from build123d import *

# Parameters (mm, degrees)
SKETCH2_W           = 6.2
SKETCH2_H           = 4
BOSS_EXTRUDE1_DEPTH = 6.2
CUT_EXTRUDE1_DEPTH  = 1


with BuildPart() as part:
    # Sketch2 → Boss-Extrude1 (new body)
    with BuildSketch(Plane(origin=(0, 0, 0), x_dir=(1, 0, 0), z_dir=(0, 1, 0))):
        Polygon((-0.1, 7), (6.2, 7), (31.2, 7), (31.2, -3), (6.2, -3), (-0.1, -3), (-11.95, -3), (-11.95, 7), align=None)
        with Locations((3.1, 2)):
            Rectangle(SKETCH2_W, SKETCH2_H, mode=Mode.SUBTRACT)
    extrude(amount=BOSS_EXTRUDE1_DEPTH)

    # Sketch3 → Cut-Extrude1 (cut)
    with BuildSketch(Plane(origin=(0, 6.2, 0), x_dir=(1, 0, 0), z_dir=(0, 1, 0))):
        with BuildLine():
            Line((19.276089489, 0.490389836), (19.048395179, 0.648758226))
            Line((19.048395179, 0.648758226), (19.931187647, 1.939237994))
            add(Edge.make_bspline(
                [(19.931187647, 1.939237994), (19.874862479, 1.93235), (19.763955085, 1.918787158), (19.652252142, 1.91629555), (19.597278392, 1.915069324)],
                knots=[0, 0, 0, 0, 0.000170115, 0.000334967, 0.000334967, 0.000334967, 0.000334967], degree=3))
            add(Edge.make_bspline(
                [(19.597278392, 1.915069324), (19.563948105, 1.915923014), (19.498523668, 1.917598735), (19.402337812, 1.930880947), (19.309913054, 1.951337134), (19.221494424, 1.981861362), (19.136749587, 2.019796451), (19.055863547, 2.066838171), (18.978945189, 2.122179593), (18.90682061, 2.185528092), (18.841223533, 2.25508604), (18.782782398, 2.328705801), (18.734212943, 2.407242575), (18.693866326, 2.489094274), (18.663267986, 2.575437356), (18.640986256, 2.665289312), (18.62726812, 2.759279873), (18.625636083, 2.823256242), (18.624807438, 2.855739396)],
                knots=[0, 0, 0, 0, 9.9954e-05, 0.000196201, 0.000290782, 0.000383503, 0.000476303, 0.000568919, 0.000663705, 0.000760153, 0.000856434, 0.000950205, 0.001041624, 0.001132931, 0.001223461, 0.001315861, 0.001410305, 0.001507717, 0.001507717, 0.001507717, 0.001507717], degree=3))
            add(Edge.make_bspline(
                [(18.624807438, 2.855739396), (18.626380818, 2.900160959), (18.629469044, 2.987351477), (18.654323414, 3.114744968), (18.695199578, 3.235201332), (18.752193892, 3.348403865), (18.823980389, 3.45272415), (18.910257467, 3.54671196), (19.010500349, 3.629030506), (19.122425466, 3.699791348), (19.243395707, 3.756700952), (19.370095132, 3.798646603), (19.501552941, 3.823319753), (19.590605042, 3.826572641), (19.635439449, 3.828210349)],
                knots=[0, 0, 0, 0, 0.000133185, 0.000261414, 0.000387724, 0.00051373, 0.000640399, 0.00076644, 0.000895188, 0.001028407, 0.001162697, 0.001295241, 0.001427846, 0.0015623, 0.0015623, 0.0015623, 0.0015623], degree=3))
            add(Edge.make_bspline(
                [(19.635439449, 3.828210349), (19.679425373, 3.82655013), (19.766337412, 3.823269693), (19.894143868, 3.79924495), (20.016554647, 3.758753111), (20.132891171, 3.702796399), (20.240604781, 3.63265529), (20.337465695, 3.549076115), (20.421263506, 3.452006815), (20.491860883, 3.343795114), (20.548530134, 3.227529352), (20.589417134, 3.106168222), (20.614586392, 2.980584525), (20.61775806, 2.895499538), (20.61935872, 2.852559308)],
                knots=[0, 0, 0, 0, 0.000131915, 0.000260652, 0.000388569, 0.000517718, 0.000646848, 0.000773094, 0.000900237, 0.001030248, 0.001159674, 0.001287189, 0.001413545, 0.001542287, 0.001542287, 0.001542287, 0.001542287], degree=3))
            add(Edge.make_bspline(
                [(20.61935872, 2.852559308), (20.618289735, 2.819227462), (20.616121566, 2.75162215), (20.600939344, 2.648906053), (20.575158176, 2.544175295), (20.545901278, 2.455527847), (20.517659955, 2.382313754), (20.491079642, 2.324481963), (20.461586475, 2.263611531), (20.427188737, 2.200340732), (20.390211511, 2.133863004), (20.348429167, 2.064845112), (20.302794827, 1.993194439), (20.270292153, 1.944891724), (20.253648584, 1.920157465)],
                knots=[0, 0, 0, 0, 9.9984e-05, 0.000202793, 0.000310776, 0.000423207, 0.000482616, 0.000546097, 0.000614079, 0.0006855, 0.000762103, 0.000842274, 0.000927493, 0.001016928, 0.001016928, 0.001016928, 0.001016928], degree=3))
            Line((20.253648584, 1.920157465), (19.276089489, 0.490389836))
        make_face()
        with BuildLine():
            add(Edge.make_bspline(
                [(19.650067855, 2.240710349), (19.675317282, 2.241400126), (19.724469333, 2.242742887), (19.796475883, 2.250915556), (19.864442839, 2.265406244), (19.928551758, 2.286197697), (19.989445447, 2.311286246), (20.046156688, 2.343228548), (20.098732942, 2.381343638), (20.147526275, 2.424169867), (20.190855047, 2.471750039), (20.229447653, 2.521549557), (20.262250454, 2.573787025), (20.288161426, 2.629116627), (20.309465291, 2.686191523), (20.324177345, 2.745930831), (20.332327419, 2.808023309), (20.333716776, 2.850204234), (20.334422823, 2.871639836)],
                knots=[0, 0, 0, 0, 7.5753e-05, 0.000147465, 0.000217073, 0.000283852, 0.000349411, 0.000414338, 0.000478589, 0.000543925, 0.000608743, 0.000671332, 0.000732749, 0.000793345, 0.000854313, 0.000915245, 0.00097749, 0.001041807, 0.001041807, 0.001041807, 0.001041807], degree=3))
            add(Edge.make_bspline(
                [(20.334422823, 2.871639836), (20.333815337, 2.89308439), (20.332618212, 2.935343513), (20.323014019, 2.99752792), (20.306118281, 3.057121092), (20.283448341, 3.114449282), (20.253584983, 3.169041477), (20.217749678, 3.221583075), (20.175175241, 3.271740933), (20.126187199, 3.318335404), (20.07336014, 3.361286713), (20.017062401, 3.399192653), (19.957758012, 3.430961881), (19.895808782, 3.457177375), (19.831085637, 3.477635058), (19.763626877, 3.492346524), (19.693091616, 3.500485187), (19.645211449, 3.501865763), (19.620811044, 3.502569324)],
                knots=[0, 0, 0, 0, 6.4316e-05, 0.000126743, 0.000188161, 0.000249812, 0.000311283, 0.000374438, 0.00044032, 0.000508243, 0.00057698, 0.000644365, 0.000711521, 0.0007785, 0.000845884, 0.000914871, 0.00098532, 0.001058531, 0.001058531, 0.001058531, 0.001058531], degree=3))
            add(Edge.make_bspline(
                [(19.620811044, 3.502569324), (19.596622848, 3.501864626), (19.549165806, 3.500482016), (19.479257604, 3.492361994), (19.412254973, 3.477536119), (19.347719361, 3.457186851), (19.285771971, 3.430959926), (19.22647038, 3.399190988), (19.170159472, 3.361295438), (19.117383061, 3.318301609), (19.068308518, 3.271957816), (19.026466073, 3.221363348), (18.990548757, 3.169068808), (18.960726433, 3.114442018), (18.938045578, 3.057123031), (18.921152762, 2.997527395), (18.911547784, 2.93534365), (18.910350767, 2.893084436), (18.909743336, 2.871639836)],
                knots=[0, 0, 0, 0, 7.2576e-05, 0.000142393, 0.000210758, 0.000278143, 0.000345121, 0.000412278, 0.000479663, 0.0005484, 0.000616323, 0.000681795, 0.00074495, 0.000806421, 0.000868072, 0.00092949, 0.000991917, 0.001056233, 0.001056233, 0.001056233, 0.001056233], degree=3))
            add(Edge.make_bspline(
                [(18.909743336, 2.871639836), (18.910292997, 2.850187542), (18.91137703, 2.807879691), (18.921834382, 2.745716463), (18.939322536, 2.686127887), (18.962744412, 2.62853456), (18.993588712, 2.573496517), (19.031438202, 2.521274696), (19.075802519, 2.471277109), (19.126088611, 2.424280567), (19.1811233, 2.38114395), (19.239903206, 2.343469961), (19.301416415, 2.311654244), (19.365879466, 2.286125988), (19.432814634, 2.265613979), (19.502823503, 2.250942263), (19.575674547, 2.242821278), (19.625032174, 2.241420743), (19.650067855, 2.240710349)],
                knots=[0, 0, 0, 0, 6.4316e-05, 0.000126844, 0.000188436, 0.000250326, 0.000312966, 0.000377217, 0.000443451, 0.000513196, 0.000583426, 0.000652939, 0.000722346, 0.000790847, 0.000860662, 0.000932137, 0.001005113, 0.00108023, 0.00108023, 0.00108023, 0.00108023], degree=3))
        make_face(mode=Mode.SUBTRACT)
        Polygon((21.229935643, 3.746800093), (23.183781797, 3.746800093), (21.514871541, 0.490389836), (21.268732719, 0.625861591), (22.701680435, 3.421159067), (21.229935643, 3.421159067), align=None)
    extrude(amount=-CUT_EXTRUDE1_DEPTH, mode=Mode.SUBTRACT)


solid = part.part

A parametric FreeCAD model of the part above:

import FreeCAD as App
import Part
import Sketcher
from FreeCAD import Vector

doc = App.newDocument("Part")
body = doc.addObject("PartDesign::Body", "Body")

# Sketch on XZ plane
sketch1 = doc.addObject("Sketcher::SketchObject", "Sketch")
body.addObject(sketch1)
sketch1.AttachmentSupport = (doc.XZ_Plane, [""])
sketch1.MapMode = "FlatFace"
sketch1.addGeometry([
    Part.LineSegment(Vector(31.2, -7, 0), Vector(-11.9, -7, 0)),  # 0
    Part.LineSegment(Vector(-11.9, -7, 0), Vector(-11.9, 3, 0)),  # 1
    Part.LineSegment(Vector(-11.9, 3, 0), Vector(31.2, 3, 0)),  # 2
    Part.LineSegment(Vector(31.2, 3, 0), Vector(31.2, -7, 0)),  # 3
    Part.LineSegment(Vector(0, 0, 0), Vector(0, -4, 0)),  # 4
    Part.LineSegment(Vector(0, -4, 0), Vector(6.2, -4, 0)),  # 5
    Part.LineSegment(Vector(6.2, -4, 0), Vector(6.2, 0, 0)),  # 6
    Part.LineSegment(Vector(6.2, 0, 0), Vector(0, 0, 0)),  # 7
], False)
sketch1.addConstraint([
    Sketcher.Constraint("Coincident", 0, 2, 1, 1),
    Sketcher.Constraint("Coincident", 1, 2, 2, 1),
    Sketcher.Constraint("Coincident", 2, 2, 3, 1),
    Sketcher.Constraint("Coincident", 3, 2, 0, 1),
    Sketcher.Constraint("Coincident", 4, 2, 5, 1),
    Sketcher.Constraint("Coincident", 5, 2, 6, 1),
    Sketcher.Constraint("Coincident", 6, 2, 7, 1),
    Sketcher.Constraint("Coincident", 7, 2, 4, 1),
    Sketcher.Constraint("Horizontal", 0),
    Sketcher.Constraint("Vertical", 1),
    Sketcher.Constraint("Horizontal", 2),
    Sketcher.Constraint("Vertical", 3),
    Sketcher.Constraint("Vertical", 4),
    Sketcher.Constraint("Horizontal", 5),
    Sketcher.Constraint("Vertical", 6),
    Sketcher.Constraint("Horizontal", 7),
    Sketcher.Constraint("Coincident", 7, 2, -1, 1),
    Sketcher.Constraint("DistanceY", 1, 1, 1, 2, 10.0),
    Sketcher.Constraint("DistanceY", 4, 2, 4, 1, 4.0),
    Sketcher.Constraint("DistanceX", 5, 1, 5, 2, 6.2),
    Sketcher.Constraint("DistanceY", 0, 2, -1, 1, 7.0),
    Sketcher.Constraint("DistanceX", 5, 2, 3, 2, 25.0),
    Sketcher.Constraint("DistanceX", 0, 2, 0, 1, 43.15),
])
pad1 = doc.addObject("PartDesign::Pad", "Pad")
body.addObject(pad1)
pad1.Profile = sketch1
pad1.Length = 6.2
pad1.Reversed = True

# Sketch on XZ plane
sketch2 = doc.addObject("Sketcher::SketchObject", "Sketch001")
body.addObject(sketch2)
sketch2.AttachmentSupport = (doc.XZ_Plane, [""])
sketch2.MapMode = "FlatFace"
sketch2.AttachmentOffset = App.Placement(Vector(0, 0, -6.2), App.Rotation())
sketch2.addGeometry([
    Part.LineSegment(Vector(19.048395, -0.648758, 0), Vector(19.276089, -0.49039, 0)),  # 0
    Part.LineSegment(Vector(19.276089, -0.49039, 0), Vector(20.253649, -1.920157, 0)),  # 1
    Part.BSplineCurve([Vector(20.619359, -2.852559, 0), Vector(20.61829, -2.819227, 0), Vector(20.616122, -2.751622, 0), Vector(20.600939, -2.648906, 0), Vector(20.575158, -2.544175, 0), Vector(20.545901, -2.455528, 0), Vector(20.51766, -2.382314, 0), Vector(20.49108, -2.324482, 0), Vector(20.461586, -2.263612, 0), Vector(20.427189, -2.200341, 0), Vector(20.390212, -2.133863, 0), Vector(20.348429, -2.064845, 0), Vector(20.302795, -1.993194, 0), Vector(20.270292, -1.944892, 0), Vector(20.253649, -1.920157, 0)], [4, 1, 1, 1, 1, 1, 1, 1, 1, 1, 1, 1, 4], [0, 0.000099984, 0.000202793, 0.000310776, 0.000423207, 0.000482616, 0.000546097, 0.000614079, 0.0006855, 0.000762103, 0.000842274, 0.000927493, 0.001016928], False, 3, [1, 1, 1, 1, 1, 1, 1, 1, 1, 1, 1, 1, 1, 1, 1], False),  # 2
    Part.BSplineCurve([Vector(19.635439, -3.82821, 0), Vector(19.679425, -3.82655, 0), Vector(19.766337, -3.82327, 0), Vector(19.894144, -3.799245, 0), Vector(20.016555, -3.758753, 0), Vector(20.132891, -3.702796, 0), Vector(20.240605, -3.632655, 0), Vector(20.337466, -3.549076, 0), Vector(20.421264, -3.452007, 0), Vector(20.491861, -3.343795, 0), Vector(20.54853, -3.227529, 0), Vector(20.589417, -3.106168, 0), Vector(20.614586, -2.980585, 0), Vector(20.617758, -2.8955, 0), Vector(20.619359, -2.852559, 0)], [4, 1, 1, 1, 1, 1, 1, 1, 1, 1, 1, 1, 4], [0, 0.000131915, 0.000260652, 0.000388569, 0.000517718, 0.000646848, 0.000773094, 0.000900237, 0.001030248, 0.001159674, 0.001287189, 0.001413545, 0.001542287], False, 3, [1, 1, 1, 1, 1, 1, 1, 1, 1, 1, 1, 1, 1, 1, 1], False),  # 3
    Part.BSplineCurve([Vector(18.624807, -2.855739, 0), Vector(18.626381, -2.900161, 0), Vector(18.629469, -2.987351, 0), Vector(18.654323, -3.114745, 0), Vector(18.6952, -3.235201, 0), Vector(18.752194, -3.348404, 0), Vector(18.82398, -3.452724, 0), Vector(18.910257, -3.546712, 0), Vector(19.0105, -3.629031, 0), Vector(19.122425, -3.699791, 0), Vector(19.243396, -3.756701, 0), Vector(19.370095, -3.798647, 0), Vector(19.501553, -3.82332, 0), Vector(19.590605, -3.826573, 0), Vector(19.635439, -3.82821, 0)], [4, 1, 1, 1, 1, 1, 1, 1, 1, 1, 1, 1, 4], [0, 0.000133185, 0.000261414, 0.000387724, 0.00051373, 0.000640399, 0.00076644, 0.000895188, 0.001028407, 0.001162697, 0.001295241, 0.001427846, 0.0015623], False, 3, [1, 1, 1, 1, 1, 1, 1, 1, 1, 1, 1, 1, 1, 1, 1], False),  # 4
    Part.BSplineCurve([Vector(19.597278, -1.915069, 0), Vector(19.563948, -1.915923, 0), Vector(19.498524, -1.917599, 0), Vector(19.402338, -1.930881, 0), Vector(19.309913, -1.951337, 0), Vector(19.221494, -1.981861, 0), Vector(19.13675, -2.019796, 0), Vector(19.055864, -2.066838, 0), Vector(18.978945, -2.12218, 0), Vector(18.906821, -2.185528, 0), Vector(18.841224, -2.255086, 0), Vector(18.782782, -2.328706, 0), Vector(18.734213, -2.407243, 0), Vector(18.693866, -2.489094, 0), Vector(18.663268, -2.575437, 0), Vector(18.640986, -2.665289, 0), Vector(18.627268, -2.75928, 0), Vector(18.625636, -2.823256, 0), Vector(18.624807, -2.855739, 0)], [4, 1, 1, 1, 1, 1, 1, 1, 1, 1, 1, 1, 1, 1, 1, 1, 4], [0, 0.000099954, 0.000196201, 0.000290782, 0.000383503, 0.000476303, 0.000568919, 0.000663705, 0.000760153, 0.000856434, 0.000950205, 0.001041624, 0.001132931, 0.001223461, 0.001315861, 0.001410305, 0.001507717], False, 3, [1, 1, 1, 1, 1, 1, 1, 1, 1, 1, 1, 1, 1, 1, 1, 1, 1, 1, 1], False),  # 5
    Part.BSplineCurve([Vector(19.931188, -1.939238, 0), Vector(19.874862, -1.93235, 0), Vector(19.763955, -1.918787, 0), Vector(19.652252, -1.916296, 0), Vector(19.597278, -1.915069, 0)], [4, 1, 4], [0, 0.000170115, 0.000334967], False, 3, [1, 1, 1, 1, 1], False),  # 6
    Part.LineSegment(Vector(19.931188, -1.939238, 0), Vector(19.048395, -0.648758, 0)),  # 7
    Part.BSplineCurve([Vector(18.909743, -2.87164, 0), Vector(18.910293, -2.850188, 0), Vector(18.911377, -2.80788, 0), Vector(18.921834, -2.745716, 0), Vector(18.939323, -2.686128, 0), Vector(18.962744, -2.628535, 0), Vector(18.993589, -2.573497, 0), Vector(19.031438, -2.521275, 0), Vector(19.075803, -2.471277, 0), Vector(19.126089, -2.424281, 0), Vector(19.181123, -2.381144, 0), Vector(19.239903, -2.34347, 0), Vector(19.301416, -2.311654, 0), Vector(19.365879, -2.286126, 0), Vector(19.432815, -2.265614, 0), Vector(19.502824, -2.250942, 0), Vector(19.575675, -2.242821, 0), Vector(19.625032, -2.241421, 0), Vector(19.650068, -2.24071, 0)], [4, 1, 1, 1, 1, 1, 1, 1, 1, 1, 1, 1, 1, 1, 1, 1, 4], [0, 0.000064316, 0.000126844, 0.000188436, 0.000250326, 0.000312966, 0.000377217, 0.000443451, 0.000513196, 0.000583426, 0.000652939, 0.000722346, 0.000790847, 0.000860662, 0.000932137, 0.001005113, 0.00108023], False, 3, [1, 1, 1, 1, 1, 1, 1, 1, 1, 1, 1, 1, 1, 1, 1, 1, 1, 1, 1], False),  # 8
    Part.BSplineCurve([Vector(19.620811, -3.502569, 0), Vector(19.596623, -3.501865, 0), Vector(19.549166, -3.500482, 0), Vector(19.479258, -3.492362, 0), Vector(19.412255, -3.477536, 0), Vector(19.347719, -3.457187, 0), Vector(19.285772, -3.43096, 0), Vector(19.22647, -3.399191, 0), Vector(19.170159, -3.361295, 0), Vector(19.117383, -3.318302, 0), Vector(19.068309, -3.271958, 0), Vector(19.026466, -3.221363, 0), Vector(18.990549, -3.169069, 0), Vector(18.960726, -3.114442, 0), Vector(18.938046, -3.057123, 0), Vector(18.921153, -2.997527, 0), Vector(18.911548, -2.935344, 0), Vector(18.910351, -2.893084, 0), Vector(18.909743, -2.87164, 0)], [4, 1, 1, 1, 1, 1, 1, 1, 1, 1, 1, 1, 1, 1, 1, 1, 4], [0, 0.000072576, 0.000142393, 0.000210758, 0.000278143, 0.000345121, 0.000412278, 0.000479663, 0.0005484, 0.000616323, 0.000681795, 0.00074495, 0.000806421, 0.000868072, 0.00092949, 0.000991917, 0.001056233], False, 3, [1, 1, 1, 1, 1, 1, 1, 1, 1, 1, 1, 1, 1, 1, 1, 1, 1, 1, 1], False),  # 9
    Part.BSplineCurve([Vector(20.334423, -2.87164, 0), Vector(20.333815, -2.893084, 0), Vector(20.332618, -2.935344, 0), Vector(20.323014, -2.997528, 0), Vector(20.306118, -3.057121, 0), Vector(20.283448, -3.114449, 0), Vector(20.253585, -3.169041, 0), Vector(20.21775, -3.221583, 0), Vector(20.175175, -3.271741, 0), Vector(20.126187, -3.318335, 0), Vector(20.07336, -3.361287, 0), Vector(20.017062, -3.399193, 0), Vector(19.957758, -3.430962, 0), Vector(19.895809, -3.457177, 0), Vector(19.831086, -3.477635, 0), Vector(19.763627, -3.492347, 0), Vector(19.693092, -3.500485, 0), Vector(19.645211, -3.501866, 0), Vector(19.620811, -3.502569, 0)], [4, 1, 1, 1, 1, 1, 1, 1, 1, 1, 1, 1, 1, 1, 1, 1, 4], [0, 0.000064316, 0.000126743, 0.000188161, 0.000249812, 0.000311283, 0.000374438, 0.00044032, 0.000508243, 0.00057698, 0.000644365, 0.000711521, 0.0007785, 0.000845884, 0.000914871, 0.00098532, 0.001058531], False, 3, [1, 1, 1, 1, 1, 1, 1, 1, 1, 1, 1, 1, 1, 1, 1, 1, 1, 1, 1], False),  # 10
    Part.BSplineCurve([Vector(19.650068, -2.24071, 0), Vector(19.675317, -2.2414, 0), Vector(19.724469, -2.242743, 0), Vector(19.796476, -2.250916, 0), Vector(19.864443, -2.265406, 0), Vector(19.928552, -2.286198, 0), Vector(19.989445, -2.311286, 0), Vector(20.046157, -2.343229, 0), Vector(20.098733, -2.381344, 0), Vector(20.147526, -2.42417, 0), Vector(20.190855, -2.47175, 0), Vector(20.229448, -2.52155, 0), Vector(20.26225, -2.573787, 0), Vector(20.288161, -2.629117, 0), Vector(20.309465, -2.686192, 0), Vector(20.324177, -2.745931, 0), Vector(20.332327, -2.808023, 0), Vector(20.333717, -2.850204, 0), Vector(20.334423, -2.87164, 0)], [4, 1, 1, 1, 1, 1, 1, 1, 1, 1, 1, 1, 1, 1, 1, 1, 4], [0, 0.000075753, 0.000147465, 0.000217073, 0.000283852, 0.000349411, 0.000414338, 0.000478589, 0.000543925, 0.000608743, 0.000671332, 0.000732749, 0.000793345, 0.000854313, 0.000915245, 0.00097749, 0.001041807], False, 3, [1, 1, 1, 1, 1, 1, 1, 1, 1, 1, 1, 1, 1, 1, 1, 1, 1, 1, 1], False),  # 11
    Part.LineSegment(Vector(23.183782, -3.7468, 0), Vector(21.229936, -3.7468, 0)),  # 12
    Part.LineSegment(Vector(21.229936, -3.7468, 0), Vector(21.229936, -3.421159, 0)),  # 13
    Part.LineSegment(Vector(21.229936, -3.421159, 0), Vector(22.70168, -3.421159, 0)),  # 14
    Part.LineSegment(Vector(22.70168, -3.421159, 0), Vector(21.268733, -0.625862, 0)),  # 15
    Part.LineSegment(Vector(21.268733, -0.625862, 0), Vector(21.514872, -0.49039, 0)),  # 16
    Part.LineSegment(Vector(21.514872, -0.49039, 0), Vector(23.183782, -3.7468, 0)),  # 17
], False)
sketch2.addConstraint([
    Sketcher.Constraint("Block", 2),
    Sketcher.Constraint("Block", 3),
    Sketcher.Constraint("Block", 4),
    Sketcher.Constraint("Block", 5),
    Sketcher.Constraint("Block", 6),
    Sketcher.Constraint("Block", 8),
    Sketcher.Constraint("Block", 9),
    Sketcher.Constraint("Block", 10),
    Sketcher.Constraint("Block", 11),
    Sketcher.Constraint("Coincident", 0, 2, 1, 1),
    Sketcher.Constraint("Coincident", 1, 2, 2, 2),
    Sketcher.Constraint("Coincident", 6, 1, 7, 1),
    Sketcher.Constraint("Coincident", 7, 2, 0, 1),
    Sketcher.Constraint("Coincident", 12, 2, 13, 1),
    Sketcher.Constraint("Coincident", 13, 2, 14, 1),
    Sketcher.Constraint("Coincident", 14, 2, 15, 1),
    Sketcher.Constraint("Coincident", 15, 2, 16, 1),
    Sketcher.Constraint("Coincident", 16, 2, 17, 1),
    Sketcher.Constraint("Coincident", 17, 2, 12, 1),
    Sketcher.Constraint("Horizontal", 12),
    Sketcher.Constraint("Vertical", 13),
    Sketcher.Constraint("Horizontal", 14),
    Sketcher.Constraint("Horizontal", 0, 2, 16, 2),
    Sketcher.Constraint("DistanceY", 13, 2, 1, 2, 1.501002),
    Sketcher.Constraint("DistanceY", 13, 1, 13, 2, 0.325641),
    Sketcher.Constraint("DistanceY", 1, 2, 7, 2, 1.271399),
    Sketcher.Constraint("DistanceX", 14, 2, 17, 2, 0.482101),
    Sketcher.Constraint("Distance", 1, 1.73201),
    Sketcher.Constraint("Distance", 7, 1.563541),
    Sketcher.Constraint("DistanceX", 12, 2, 12, 1, 1.953846),
    Sketcher.Constraint("DistanceX", -1, 1, 0, 2, 19.276089),
    Sketcher.Constraint("DistanceX", -1, 1, 14, 2, 22.70168),
    Sketcher.Constraint("DistanceY", 15, 2, -1, 1, 0.625862),
    Sketcher.Constraint("DistanceX", -1, 1, 16, 2, 21.514872),
    Sketcher.Constraint("DistanceX", 15, 2, 16, 2, 0.246139),
])
pocket1 = doc.addObject("PartDesign::Pocket", "Pocket")
body.addObject(pocket1)
pocket1.Profile = sketch2
pocket1.Length = 1
pocket1.Reversed = True

doc.recompute()
